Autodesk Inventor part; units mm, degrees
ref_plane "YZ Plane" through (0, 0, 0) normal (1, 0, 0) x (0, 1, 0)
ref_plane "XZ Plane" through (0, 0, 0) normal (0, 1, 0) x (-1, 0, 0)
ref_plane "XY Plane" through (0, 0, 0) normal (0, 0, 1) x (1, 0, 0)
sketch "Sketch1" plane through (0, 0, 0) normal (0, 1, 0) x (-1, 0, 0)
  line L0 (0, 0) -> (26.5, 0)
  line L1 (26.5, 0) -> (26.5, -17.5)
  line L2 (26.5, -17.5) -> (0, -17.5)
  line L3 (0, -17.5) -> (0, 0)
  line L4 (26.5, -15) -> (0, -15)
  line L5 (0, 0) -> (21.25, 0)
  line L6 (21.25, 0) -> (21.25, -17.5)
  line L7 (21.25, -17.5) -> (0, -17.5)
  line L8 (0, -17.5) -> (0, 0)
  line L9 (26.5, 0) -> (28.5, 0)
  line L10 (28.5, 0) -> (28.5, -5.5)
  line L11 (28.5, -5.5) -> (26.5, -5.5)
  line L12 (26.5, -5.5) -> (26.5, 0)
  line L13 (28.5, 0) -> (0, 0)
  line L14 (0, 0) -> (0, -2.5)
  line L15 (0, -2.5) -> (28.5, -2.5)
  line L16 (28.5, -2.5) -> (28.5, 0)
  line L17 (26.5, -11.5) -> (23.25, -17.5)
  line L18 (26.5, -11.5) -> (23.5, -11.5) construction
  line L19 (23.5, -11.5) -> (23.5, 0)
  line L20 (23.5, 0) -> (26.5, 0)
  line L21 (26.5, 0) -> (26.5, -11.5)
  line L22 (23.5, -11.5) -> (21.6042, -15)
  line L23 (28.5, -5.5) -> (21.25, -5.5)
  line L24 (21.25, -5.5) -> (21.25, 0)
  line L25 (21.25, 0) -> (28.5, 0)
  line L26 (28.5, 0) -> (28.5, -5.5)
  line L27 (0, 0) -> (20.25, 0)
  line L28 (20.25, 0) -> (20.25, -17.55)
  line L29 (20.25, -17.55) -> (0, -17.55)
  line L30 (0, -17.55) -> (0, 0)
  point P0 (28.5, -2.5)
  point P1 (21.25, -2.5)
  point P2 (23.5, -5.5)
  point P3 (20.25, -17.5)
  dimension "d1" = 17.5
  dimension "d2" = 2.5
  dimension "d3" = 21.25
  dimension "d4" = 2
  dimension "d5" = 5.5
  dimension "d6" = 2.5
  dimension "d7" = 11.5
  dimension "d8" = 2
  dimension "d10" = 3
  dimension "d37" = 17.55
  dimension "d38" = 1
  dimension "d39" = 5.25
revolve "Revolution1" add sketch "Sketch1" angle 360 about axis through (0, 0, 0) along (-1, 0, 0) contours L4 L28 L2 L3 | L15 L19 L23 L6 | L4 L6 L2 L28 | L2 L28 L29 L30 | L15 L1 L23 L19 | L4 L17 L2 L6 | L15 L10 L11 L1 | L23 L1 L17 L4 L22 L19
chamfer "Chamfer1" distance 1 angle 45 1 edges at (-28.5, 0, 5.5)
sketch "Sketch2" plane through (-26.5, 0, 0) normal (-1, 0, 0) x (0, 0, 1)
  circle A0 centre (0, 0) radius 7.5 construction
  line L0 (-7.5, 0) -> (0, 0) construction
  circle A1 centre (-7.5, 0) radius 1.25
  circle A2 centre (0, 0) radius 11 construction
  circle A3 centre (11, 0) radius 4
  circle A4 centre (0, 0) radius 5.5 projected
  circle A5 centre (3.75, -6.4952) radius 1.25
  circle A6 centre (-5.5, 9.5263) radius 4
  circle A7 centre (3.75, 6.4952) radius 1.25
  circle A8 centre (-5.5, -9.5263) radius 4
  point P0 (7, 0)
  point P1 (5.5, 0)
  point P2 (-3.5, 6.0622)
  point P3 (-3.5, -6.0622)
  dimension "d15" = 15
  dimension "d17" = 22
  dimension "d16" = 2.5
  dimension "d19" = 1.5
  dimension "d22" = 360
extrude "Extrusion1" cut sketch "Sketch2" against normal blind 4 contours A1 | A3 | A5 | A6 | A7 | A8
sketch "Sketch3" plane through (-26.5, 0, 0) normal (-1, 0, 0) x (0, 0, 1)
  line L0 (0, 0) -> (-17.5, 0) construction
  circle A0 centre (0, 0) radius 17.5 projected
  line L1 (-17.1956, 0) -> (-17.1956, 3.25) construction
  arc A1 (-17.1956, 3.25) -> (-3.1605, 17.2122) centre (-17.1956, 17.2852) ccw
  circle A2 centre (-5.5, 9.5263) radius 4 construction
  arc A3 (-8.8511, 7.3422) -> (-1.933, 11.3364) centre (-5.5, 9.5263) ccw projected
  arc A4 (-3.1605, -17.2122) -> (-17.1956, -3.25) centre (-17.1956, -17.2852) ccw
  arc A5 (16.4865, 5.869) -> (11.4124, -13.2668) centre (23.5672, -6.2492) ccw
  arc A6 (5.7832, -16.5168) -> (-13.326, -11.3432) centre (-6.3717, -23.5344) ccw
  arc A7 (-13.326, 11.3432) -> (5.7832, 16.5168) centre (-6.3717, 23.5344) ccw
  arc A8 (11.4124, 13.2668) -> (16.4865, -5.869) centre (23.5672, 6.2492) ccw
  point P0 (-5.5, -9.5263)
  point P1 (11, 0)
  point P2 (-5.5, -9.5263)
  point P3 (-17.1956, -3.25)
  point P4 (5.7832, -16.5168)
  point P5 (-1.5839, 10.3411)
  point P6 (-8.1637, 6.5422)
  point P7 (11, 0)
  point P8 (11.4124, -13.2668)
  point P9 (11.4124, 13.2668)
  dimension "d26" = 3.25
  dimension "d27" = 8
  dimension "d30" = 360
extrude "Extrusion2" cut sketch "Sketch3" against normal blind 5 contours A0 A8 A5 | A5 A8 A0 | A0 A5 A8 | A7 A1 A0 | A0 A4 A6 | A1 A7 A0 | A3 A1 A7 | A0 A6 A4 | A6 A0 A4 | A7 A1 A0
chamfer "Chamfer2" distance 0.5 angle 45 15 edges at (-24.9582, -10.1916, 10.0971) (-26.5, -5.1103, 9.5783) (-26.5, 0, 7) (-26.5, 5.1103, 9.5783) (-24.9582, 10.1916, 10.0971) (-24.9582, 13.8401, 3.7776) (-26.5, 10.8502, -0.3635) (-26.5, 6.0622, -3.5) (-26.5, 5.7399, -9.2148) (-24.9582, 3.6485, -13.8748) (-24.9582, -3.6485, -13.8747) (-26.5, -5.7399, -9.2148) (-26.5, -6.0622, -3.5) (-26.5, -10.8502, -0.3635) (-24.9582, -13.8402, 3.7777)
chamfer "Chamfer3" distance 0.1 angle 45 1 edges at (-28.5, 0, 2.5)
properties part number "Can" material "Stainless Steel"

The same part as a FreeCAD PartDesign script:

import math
import FreeCAD as App
import Part
import Sketcher
from FreeCAD import Vector


def edges_at(feature, points):
    """Names of the edges that pass closest to the given points."""
    edges = feature.Shape.Edges
    near = lambda p: min(range(len(edges)), key=lambda i: edges[i].distToShape(Part.Vertex(*p))[0])
    return sorted({f"Edge{near(p) + 1}" for p in points})


def add_polygon(sketch, points):
    """Adds a closed chain of lines whose ends are joined by coincident constraints."""
    first, n = sketch.GeometryCount, len(points)
    for a, b in zip(points, points[1:] + points[:1]):
        sketch.addGeometry(Part.LineSegment(App.Vector(*a, 0), App.Vector(*b, 0)), False)
    for i in range(n):
        sketch.addConstraint(Sketcher.Constraint("Coincident", first + i, 2, first + (i + 1) % n, 1))

doc = App.newDocument("Part")
params = doc.addObject("Spreadsheet::Sheet", "Params")
for row, (alias, value) in enumerate([
    ("sketch1_width", "3 mm"),
    ("sketch1_width2", "2 mm"),
    ("revolution_angle", "360 deg"),
    ("chamfer_size", "1 mm"),
    ("sketch2_diameter", "2.5 mm"),
    ("sketch2_diameter2", "8 mm"),
    ("pocket1_length", "4 mm"),
    ("sketch3_radius", "4 mm"),
    ("sketch3_radius2", "17.5 mm"),
    ("pocket2_length", "5 mm"),
    ("chamfer2_size", "0.5 mm"),
    ("chamfer3_size", "0.1 mm"),
], start=1):
    params.set(f"A{row}", alias)
    params.set(f"B{row}", "=" + value)
    params.setAlias(f"B{row}", alias)

body = doc.addObject("PartDesign::Body", "Body")

# Sketch on XZ plane
sketch1 = body.newObject("Sketcher::SketchObject", "Sketch")
sketch1.AttachmentSupport = (doc.getObject("XZ_Plane"), [""])
sketch1.MapMode = "FlatFace"
add_polygon(sketch1, [(0, -15), (0, -17.55), (-20.25, -17.55), (-20.25, -17.5), (-23.25, -17.5), (-26.5, -11.5), (-26.5, -5.5), (-28.5, -5.5), (-28.5, -2.5), (-21.25, -2.5), (-21.25, -5.5), (-23.5, -5.5), (-23.5, -11.5), (-21.6042, -15)])  # lines 0-13
sketch1.addConstraint(Sketcher.Constraint("Vertical", 0))
sketch1.addConstraint(Sketcher.Constraint("Horizontal", 1))
sketch1.addConstraint(Sketcher.Constraint("Vertical", 2))
sketch1.addConstraint(Sketcher.Constraint("Horizontal", 3))
sketch1.addConstraint(Sketcher.Constraint("Vertical", 5))
sketch1.addConstraint(Sketcher.Constraint("Horizontal", 6))
sketch1.addConstraint(Sketcher.Constraint("Vertical", 7))
sketch1.addConstraint(Sketcher.Constraint("Horizontal", 8))
sketch1.addConstraint(Sketcher.Constraint("Vertical", 9))
sketch1.addConstraint(Sketcher.Constraint("Horizontal", 10))
sketch1.addConstraint(Sketcher.Constraint("Vertical", 11))
sketch1.addConstraint(Sketcher.Constraint("Horizontal", 13))
sketch1.addConstraint(Sketcher.Constraint("PointOnObject", 0, 2, -2))
sketch1.addConstraint(Sketcher.Constraint("Parallel", 4, 12))
sketch1.addConstraint(Sketcher.Constraint("Horizontal", 6, 2, 9, 2))
sketch1.addConstraint(Sketcher.Constraint("Horizontal", 4, 2, 11, 2))
sketch1.addConstraint(Sketcher.Constraint("Equal", 3, 7))
sketch1.addConstraint(Sketcher.Constraint("DistanceX", 3, 2, 3, 1, 3.0))
sketch1.addConstraint(Sketcher.Constraint("DistanceX", 6, 2, 6, 1, 2.0))
sketch1.addConstraint(Sketcher.Constraint("DistanceX", 8, 2, 2, 2, 1.0))
sketch1.addConstraint(Sketcher.Constraint("DistanceX", 5, 2, 10, 2, 3.0))
sketch1.addConstraint(Sketcher.Constraint("DistanceY", 2, 2, -1, 1, 17.5))
sketch1.addConstraint(Sketcher.Constraint("DistanceY", 4, 2, -1, 1, 11.5))
sketch1.addConstraint(Sketcher.Constraint("DistanceY", 5, 2, -1, 1, 5.5))
sketch1.addConstraint(Sketcher.Constraint("DistanceY", 2, 2, 12, 2, 2.5))
sketch1.addConstraint(Sketcher.Constraint("DistanceY", 0, 2, -1, 1, 17.55))
sketch1.addConstraint(Sketcher.Constraint("DistanceX", 8, 2, -1, 1, 21.25))
sketch1.addConstraint(Sketcher.Constraint("DistanceX", 6, 2, 3, 2, 5.25))
sketch1.setExpression("Constraints[31]", "Params.sketch1_width")
sketch1.setExpression("Constraints[32]", "Params.sketch1_width2")
revolution = body.newObject("PartDesign::Revolution", "Revolution")
revolution.Profile = sketch1
revolution.ReferenceAxis = (sketch1, ["H_Axis"])
revolution.setExpression("Angle", "Params.revolution_angle")
doc.recompute()

chamfer = body.newObject("PartDesign::Chamfer", "Chamfer")
chamfer.Base = (revolution, edges_at(revolution, [(-28.5, 0, 5.5)]))
chamfer.setExpression("Size", "Params.chamfer_size")

# Sketch on YZ plane
sketch2 = body.newObject("Sketcher::SketchObject", "Sketch001")
sketch2.AttachmentSupport = (doc.getObject("YZ_Plane"), [""])
sketch2.MapMode = "FlatFace"
sketch2.AttachmentOffset = App.Placement(Vector(0, 0, -26.5), App.Rotation())
sketch2.addGeometry(Part.Circle(Vector(0, -7.5, 0), Vector(0, 0, 1), 1.25), False)
sketch2.addGeometry(Part.Circle(Vector(0, 11, 0), Vector(0, 0, 1), 4), False)
sketch2.addGeometry(Part.Circle(Vector(-6.4952, 3.75, 0), Vector(0, 0, 1), 1.25), False)
sketch2.addGeometry(Part.Circle(Vector(9.5263, -5.5, 0), Vector(0, 0, 1), 4), False)
sketch2.addGeometry(Part.Circle(Vector(6.4952, 3.75, 0), Vector(0, 0, 1), 1.25), False)
sketch2.addGeometry(Part.Circle(Vector(-9.5263, -5.5, 0), Vector(0, 0, 1), 4), False)
sketch2.addConstraint(Sketcher.Constraint("Equal", 0, 2))
sketch2.addConstraint(Sketcher.Constraint("Equal", 1, 3))
sketch2.addConstraint(Sketcher.Constraint("Equal", 2, 4))
sketch2.addConstraint(Sketcher.Constraint("Equal", 3, 5))
sketch2.addConstraint(Sketcher.Constraint("Symmetric", 2, 3, 4, 3, -2))
sketch2.addConstraint(Sketcher.Constraint("Symmetric", 3, 3, 5, 3, -2))
sketch2.addConstraint(Sketcher.Constraint("PointOnObject", 0, 3, -2))
sketch2.addConstraint(Sketcher.Constraint("PointOnObject", 1, 3, -2))
sketch2.addConstraint(Sketcher.Constraint("Diameter", 0, 2.5))
sketch2.addConstraint(Sketcher.Constraint("Diameter", 1, 8.0))
sketch2.addConstraint(Sketcher.Constraint("DistanceY", -1, 1, 1, 3, 11.0))
sketch2.addConstraint(Sketcher.Constraint("DistanceY", 0, 3, 3, 3, 2.0))
sketch2.addConstraint(Sketcher.Constraint("DistanceY", 0, 3, -1, 1, 7.5))
sketch2.addConstraint(Sketcher.Constraint("DistanceY", -1, 1, 2, 3, 3.75))
sketch2.addConstraint(Sketcher.Constraint("DistanceX", 4, 3, 3, 3, 3.031))
sketch2.addConstraint(Sketcher.Constraint("DistanceX", 2, 3, -1, 1, 6.4952))
sketch2.setExpression("Constraints[8]", "Params.sketch2_diameter")
sketch2.setExpression("Constraints[9]", "Params.sketch2_diameter2")
pocket1 = body.newObject("PartDesign::Pocket", "Pocket")
pocket1.Profile = sketch2
pocket1.setExpression("Length", "Params.pocket1_length")
pocket1.Reversed = True

# Sketch on YZ plane
sketch3 = body.newObject("Sketcher::SketchObject", "Sketch002")
sketch3.AttachmentSupport = (doc.getObject("YZ_Plane"), [""])
sketch3.MapMode = "FlatFace"
sketch3.AttachmentOffset = App.Placement(Vector(0, 0, -26.5), App.Rotation())
sketch3.addGeometry(Part.ArcOfCircle(Part.Circle(Vector(6.2492, 23.5672, 0), Vector(0, 0, 1), 14.035166), math.radians(-116.439308), math.radians(-59.999919)), False)
sketch3.addGeometry(Part.ArcOfCircle(Part.Circle(Vector(-6.2492, 23.5672, 0), Vector(0, 0, 1), 14.035209), math.radians(-120.000081), math.radians(-63.560363)), False)
sketch3.addGeometry(Part.ArcOfCircle(Part.Circle(Vector(0, 0, 0), Vector(0, 0, 1), 17.5), math.radians(40.702859), math.radians(139.297141)), False)
sketch3.addGeometry(Part.ArcOfCircle(Part.Circle(Vector(23.5344, -6.3717, 0), Vector(0, 0, 1), 14.035229), math.radians(119.999877), math.radians(160.054256)), False)
sketch3.addGeometry(Part.ArcOfCircle(Part.Circle(Vector(0, 0, 0), Vector(0, 0, 1), 17.5), math.radians(-79.297241), math.radians(19.297216)), False)
sketch3.addGeometry(Part.ArcOfCircle(Part.Circle(Vector(17.2852, -17.1956, 0), Vector(0, 0, 1), 14.0352), math.radians(139.945453), math.radians(180)), False)
sketch3.addGeometry(Part.ArcOfCircle(Part.Circle(Vector(9.5263, -5.5, 0), Vector(0, 0, 1), 4), math.radians(78.247201), math.radians(221.753387)), False)
sketch3.addGeometry(Part.ArcOfCircle(Part.Circle(Vector(-23.5344, -6.3717, 0), Vector(0, 0, 1), 14.035252), math.radians(3.561038), math.radians(60.000123)), False)
sketch3.addGeometry(Part.ArcOfCircle(Part.Circle(Vector(-17.2852, -17.1956, 0), Vector(0, 0, 1), 14.03529), math.radians(0), math.radians(56.439531)), False)
sketch3.addGeometry(Part.ArcOfCircle(Part.Circle(Vector(0, 0, 0), Vector(0, 0, 1), 17.5), math.radians(160.702784), math.radians(259.297241)), False)
sketch3.addConstraint(Sketcher.Constraint("Coincident", 0, 1, 1, 2))
sketch3.addConstraint(Sketcher.Constraint("Coincident", 1, 1, 2, 2))
sketch3.addConstraint(Sketcher.Constraint("Coincident", 2, 1, 0, 2))
sketch3.addConstraint(Sketcher.Constraint("Coincident", 3, 1, 4, 2))
sketch3.addConstraint(Sketcher.Constraint("Coincident", 4, 1, 5, 2))
sketch3.addConstraint(Sketcher.Constraint("Coincident", 5, 1, 6, 2))
sketch3.addConstraint(Sketcher.Constraint("Coincident", 6, 1, 3, 2))
sketch3.addConstraint(Sketcher.Constraint("Coincident", 7, 1, 8, 2))
sketch3.addConstraint(Sketcher.Constraint("Coincident", 8, 1, 9, 2))
sketch3.addConstraint(Sketcher.Constraint("Coincident", 9, 1, 7, 2))
sketch3.addConstraint(Sketcher.Constraint("Coincident", 2, 3, -1, 1))
sketch3.addConstraint(Sketcher.Constraint("Coincident", 4, 3, -1, 1))
sketch3.addConstraint(Sketcher.Constraint("Coincident", 9, 3, -1, 1))
sketch3.addConstraint(Sketcher.Constraint("Equal", 0, 1))
sketch3.addConstraint(Sketcher.Constraint("Equal", 1, 3))
sketch3.addConstraint(Sketcher.Constraint("Equal", 2, 4))
sketch3.addConstraint(Sketcher.Constraint("Equal", 3, 5))
sketch3.addConstraint(Sketcher.Constraint("Equal", 5, 7))
sketch3.addConstraint(Sketcher.Constraint("Equal", 7, 8))
sketch3.addConstraint(Sketcher.Constraint("Equal", 4, 9))
sketch3.addConstraint(Sketcher.Constraint("Symmetric", 0, 3, 1, 3, -2))
sketch3.addConstraint(Sketcher.Constraint("Symmetric", 3, 3, 7, 3, -2))
sketch3.addConstraint(Sketcher.Constraint("Symmetric", 5, 3, 8, 3, -2))
sketch3.addConstraint(Sketcher.Constraint("Horizontal", 8, 3, 4, 1))
sketch3.addConstraint(Sketcher.Constraint("Horizontal", 6, 3, 7, 1))
sketch3.addConstraint(Sketcher.Constraint("Radius", 6, 4.0))
sketch3.addConstraint(Sketcher.Constraint("Radius", 2, 17.5))
sketch3.addConstraint(Sketcher.Constraint("DistanceX", -1, 1, 4, 1, 3.25))
sketch3.addConstraint(Sketcher.Constraint("DistanceX", 2, 1, 3, 1, 3.25))
sketch3.addConstraint(Sketcher.Constraint("DistanceY", -1, 1, 0, 1, 11.0))
sketch3.addConstraint(Sketcher.Constraint("DistanceY", 6, 3, -1, 1, 5.5))
sketch3.addConstraint(Sketcher.Constraint("Radius", 0, 14.0352))
sketch3.addConstraint(Sketcher.Constraint("DistanceX", -1, 1, 6, 1, 10.341))
sketch3.addConstraint(Sketcher.Constraint("DistanceY", 3, 3, 0, 3, 29.939))
sketch3.setExpression("Constraints[25]", "Params.sketch3_radius")
sketch3.setExpression("Constraints[26]", "Params.sketch3_radius2")
pocket2 = body.newObject("PartDesign::Pocket", "Pocket001")
pocket2.Profile = sketch3
pocket2.setExpression("Length", "Params.pocket2_length")
pocket2.Reversed = True
doc.recompute()

chamfer2 = body.newObject("PartDesign::Chamfer", "Chamfer001")
chamfer2.Base = (pocket2, edges_at(pocket2, [
    (-24.958, -10.192, 10.097),
    (-26.5, -5.11, 9.578),
    (-26.5, 0, 7),
    (-26.5, 5.11, 9.578),
    (-24.958, 10.192, 10.097),
    (-24.958, 13.84, 3.778),
    (-26.5, 10.85, -0.363),
    (-26.5, 6.062, -3.5),
    (-26.5, 5.74, -9.215),
    (-24.958, 3.648, -13.875),
    (-24.958, -3.648, -13.875),
    (-26.5, -5.74, -9.215),
    (-26.5, -6.062, -3.5),
    (-26.5, -10.85, -0.363),
    (-24.958, -13.84, 3.778),
]))
chamfer2.setExpression("Size", "Params.chamfer2_size")
doc.recompute()

chamfer3 = body.newObject("PartDesign::Chamfer", "Chamfer002")
chamfer3.Base = (chamfer2, edges_at(chamfer2, [(-28.5, 0, 2.5)]))
chamfer3.setExpression("Size", "Params.chamfer3_size")

doc.recompute()
